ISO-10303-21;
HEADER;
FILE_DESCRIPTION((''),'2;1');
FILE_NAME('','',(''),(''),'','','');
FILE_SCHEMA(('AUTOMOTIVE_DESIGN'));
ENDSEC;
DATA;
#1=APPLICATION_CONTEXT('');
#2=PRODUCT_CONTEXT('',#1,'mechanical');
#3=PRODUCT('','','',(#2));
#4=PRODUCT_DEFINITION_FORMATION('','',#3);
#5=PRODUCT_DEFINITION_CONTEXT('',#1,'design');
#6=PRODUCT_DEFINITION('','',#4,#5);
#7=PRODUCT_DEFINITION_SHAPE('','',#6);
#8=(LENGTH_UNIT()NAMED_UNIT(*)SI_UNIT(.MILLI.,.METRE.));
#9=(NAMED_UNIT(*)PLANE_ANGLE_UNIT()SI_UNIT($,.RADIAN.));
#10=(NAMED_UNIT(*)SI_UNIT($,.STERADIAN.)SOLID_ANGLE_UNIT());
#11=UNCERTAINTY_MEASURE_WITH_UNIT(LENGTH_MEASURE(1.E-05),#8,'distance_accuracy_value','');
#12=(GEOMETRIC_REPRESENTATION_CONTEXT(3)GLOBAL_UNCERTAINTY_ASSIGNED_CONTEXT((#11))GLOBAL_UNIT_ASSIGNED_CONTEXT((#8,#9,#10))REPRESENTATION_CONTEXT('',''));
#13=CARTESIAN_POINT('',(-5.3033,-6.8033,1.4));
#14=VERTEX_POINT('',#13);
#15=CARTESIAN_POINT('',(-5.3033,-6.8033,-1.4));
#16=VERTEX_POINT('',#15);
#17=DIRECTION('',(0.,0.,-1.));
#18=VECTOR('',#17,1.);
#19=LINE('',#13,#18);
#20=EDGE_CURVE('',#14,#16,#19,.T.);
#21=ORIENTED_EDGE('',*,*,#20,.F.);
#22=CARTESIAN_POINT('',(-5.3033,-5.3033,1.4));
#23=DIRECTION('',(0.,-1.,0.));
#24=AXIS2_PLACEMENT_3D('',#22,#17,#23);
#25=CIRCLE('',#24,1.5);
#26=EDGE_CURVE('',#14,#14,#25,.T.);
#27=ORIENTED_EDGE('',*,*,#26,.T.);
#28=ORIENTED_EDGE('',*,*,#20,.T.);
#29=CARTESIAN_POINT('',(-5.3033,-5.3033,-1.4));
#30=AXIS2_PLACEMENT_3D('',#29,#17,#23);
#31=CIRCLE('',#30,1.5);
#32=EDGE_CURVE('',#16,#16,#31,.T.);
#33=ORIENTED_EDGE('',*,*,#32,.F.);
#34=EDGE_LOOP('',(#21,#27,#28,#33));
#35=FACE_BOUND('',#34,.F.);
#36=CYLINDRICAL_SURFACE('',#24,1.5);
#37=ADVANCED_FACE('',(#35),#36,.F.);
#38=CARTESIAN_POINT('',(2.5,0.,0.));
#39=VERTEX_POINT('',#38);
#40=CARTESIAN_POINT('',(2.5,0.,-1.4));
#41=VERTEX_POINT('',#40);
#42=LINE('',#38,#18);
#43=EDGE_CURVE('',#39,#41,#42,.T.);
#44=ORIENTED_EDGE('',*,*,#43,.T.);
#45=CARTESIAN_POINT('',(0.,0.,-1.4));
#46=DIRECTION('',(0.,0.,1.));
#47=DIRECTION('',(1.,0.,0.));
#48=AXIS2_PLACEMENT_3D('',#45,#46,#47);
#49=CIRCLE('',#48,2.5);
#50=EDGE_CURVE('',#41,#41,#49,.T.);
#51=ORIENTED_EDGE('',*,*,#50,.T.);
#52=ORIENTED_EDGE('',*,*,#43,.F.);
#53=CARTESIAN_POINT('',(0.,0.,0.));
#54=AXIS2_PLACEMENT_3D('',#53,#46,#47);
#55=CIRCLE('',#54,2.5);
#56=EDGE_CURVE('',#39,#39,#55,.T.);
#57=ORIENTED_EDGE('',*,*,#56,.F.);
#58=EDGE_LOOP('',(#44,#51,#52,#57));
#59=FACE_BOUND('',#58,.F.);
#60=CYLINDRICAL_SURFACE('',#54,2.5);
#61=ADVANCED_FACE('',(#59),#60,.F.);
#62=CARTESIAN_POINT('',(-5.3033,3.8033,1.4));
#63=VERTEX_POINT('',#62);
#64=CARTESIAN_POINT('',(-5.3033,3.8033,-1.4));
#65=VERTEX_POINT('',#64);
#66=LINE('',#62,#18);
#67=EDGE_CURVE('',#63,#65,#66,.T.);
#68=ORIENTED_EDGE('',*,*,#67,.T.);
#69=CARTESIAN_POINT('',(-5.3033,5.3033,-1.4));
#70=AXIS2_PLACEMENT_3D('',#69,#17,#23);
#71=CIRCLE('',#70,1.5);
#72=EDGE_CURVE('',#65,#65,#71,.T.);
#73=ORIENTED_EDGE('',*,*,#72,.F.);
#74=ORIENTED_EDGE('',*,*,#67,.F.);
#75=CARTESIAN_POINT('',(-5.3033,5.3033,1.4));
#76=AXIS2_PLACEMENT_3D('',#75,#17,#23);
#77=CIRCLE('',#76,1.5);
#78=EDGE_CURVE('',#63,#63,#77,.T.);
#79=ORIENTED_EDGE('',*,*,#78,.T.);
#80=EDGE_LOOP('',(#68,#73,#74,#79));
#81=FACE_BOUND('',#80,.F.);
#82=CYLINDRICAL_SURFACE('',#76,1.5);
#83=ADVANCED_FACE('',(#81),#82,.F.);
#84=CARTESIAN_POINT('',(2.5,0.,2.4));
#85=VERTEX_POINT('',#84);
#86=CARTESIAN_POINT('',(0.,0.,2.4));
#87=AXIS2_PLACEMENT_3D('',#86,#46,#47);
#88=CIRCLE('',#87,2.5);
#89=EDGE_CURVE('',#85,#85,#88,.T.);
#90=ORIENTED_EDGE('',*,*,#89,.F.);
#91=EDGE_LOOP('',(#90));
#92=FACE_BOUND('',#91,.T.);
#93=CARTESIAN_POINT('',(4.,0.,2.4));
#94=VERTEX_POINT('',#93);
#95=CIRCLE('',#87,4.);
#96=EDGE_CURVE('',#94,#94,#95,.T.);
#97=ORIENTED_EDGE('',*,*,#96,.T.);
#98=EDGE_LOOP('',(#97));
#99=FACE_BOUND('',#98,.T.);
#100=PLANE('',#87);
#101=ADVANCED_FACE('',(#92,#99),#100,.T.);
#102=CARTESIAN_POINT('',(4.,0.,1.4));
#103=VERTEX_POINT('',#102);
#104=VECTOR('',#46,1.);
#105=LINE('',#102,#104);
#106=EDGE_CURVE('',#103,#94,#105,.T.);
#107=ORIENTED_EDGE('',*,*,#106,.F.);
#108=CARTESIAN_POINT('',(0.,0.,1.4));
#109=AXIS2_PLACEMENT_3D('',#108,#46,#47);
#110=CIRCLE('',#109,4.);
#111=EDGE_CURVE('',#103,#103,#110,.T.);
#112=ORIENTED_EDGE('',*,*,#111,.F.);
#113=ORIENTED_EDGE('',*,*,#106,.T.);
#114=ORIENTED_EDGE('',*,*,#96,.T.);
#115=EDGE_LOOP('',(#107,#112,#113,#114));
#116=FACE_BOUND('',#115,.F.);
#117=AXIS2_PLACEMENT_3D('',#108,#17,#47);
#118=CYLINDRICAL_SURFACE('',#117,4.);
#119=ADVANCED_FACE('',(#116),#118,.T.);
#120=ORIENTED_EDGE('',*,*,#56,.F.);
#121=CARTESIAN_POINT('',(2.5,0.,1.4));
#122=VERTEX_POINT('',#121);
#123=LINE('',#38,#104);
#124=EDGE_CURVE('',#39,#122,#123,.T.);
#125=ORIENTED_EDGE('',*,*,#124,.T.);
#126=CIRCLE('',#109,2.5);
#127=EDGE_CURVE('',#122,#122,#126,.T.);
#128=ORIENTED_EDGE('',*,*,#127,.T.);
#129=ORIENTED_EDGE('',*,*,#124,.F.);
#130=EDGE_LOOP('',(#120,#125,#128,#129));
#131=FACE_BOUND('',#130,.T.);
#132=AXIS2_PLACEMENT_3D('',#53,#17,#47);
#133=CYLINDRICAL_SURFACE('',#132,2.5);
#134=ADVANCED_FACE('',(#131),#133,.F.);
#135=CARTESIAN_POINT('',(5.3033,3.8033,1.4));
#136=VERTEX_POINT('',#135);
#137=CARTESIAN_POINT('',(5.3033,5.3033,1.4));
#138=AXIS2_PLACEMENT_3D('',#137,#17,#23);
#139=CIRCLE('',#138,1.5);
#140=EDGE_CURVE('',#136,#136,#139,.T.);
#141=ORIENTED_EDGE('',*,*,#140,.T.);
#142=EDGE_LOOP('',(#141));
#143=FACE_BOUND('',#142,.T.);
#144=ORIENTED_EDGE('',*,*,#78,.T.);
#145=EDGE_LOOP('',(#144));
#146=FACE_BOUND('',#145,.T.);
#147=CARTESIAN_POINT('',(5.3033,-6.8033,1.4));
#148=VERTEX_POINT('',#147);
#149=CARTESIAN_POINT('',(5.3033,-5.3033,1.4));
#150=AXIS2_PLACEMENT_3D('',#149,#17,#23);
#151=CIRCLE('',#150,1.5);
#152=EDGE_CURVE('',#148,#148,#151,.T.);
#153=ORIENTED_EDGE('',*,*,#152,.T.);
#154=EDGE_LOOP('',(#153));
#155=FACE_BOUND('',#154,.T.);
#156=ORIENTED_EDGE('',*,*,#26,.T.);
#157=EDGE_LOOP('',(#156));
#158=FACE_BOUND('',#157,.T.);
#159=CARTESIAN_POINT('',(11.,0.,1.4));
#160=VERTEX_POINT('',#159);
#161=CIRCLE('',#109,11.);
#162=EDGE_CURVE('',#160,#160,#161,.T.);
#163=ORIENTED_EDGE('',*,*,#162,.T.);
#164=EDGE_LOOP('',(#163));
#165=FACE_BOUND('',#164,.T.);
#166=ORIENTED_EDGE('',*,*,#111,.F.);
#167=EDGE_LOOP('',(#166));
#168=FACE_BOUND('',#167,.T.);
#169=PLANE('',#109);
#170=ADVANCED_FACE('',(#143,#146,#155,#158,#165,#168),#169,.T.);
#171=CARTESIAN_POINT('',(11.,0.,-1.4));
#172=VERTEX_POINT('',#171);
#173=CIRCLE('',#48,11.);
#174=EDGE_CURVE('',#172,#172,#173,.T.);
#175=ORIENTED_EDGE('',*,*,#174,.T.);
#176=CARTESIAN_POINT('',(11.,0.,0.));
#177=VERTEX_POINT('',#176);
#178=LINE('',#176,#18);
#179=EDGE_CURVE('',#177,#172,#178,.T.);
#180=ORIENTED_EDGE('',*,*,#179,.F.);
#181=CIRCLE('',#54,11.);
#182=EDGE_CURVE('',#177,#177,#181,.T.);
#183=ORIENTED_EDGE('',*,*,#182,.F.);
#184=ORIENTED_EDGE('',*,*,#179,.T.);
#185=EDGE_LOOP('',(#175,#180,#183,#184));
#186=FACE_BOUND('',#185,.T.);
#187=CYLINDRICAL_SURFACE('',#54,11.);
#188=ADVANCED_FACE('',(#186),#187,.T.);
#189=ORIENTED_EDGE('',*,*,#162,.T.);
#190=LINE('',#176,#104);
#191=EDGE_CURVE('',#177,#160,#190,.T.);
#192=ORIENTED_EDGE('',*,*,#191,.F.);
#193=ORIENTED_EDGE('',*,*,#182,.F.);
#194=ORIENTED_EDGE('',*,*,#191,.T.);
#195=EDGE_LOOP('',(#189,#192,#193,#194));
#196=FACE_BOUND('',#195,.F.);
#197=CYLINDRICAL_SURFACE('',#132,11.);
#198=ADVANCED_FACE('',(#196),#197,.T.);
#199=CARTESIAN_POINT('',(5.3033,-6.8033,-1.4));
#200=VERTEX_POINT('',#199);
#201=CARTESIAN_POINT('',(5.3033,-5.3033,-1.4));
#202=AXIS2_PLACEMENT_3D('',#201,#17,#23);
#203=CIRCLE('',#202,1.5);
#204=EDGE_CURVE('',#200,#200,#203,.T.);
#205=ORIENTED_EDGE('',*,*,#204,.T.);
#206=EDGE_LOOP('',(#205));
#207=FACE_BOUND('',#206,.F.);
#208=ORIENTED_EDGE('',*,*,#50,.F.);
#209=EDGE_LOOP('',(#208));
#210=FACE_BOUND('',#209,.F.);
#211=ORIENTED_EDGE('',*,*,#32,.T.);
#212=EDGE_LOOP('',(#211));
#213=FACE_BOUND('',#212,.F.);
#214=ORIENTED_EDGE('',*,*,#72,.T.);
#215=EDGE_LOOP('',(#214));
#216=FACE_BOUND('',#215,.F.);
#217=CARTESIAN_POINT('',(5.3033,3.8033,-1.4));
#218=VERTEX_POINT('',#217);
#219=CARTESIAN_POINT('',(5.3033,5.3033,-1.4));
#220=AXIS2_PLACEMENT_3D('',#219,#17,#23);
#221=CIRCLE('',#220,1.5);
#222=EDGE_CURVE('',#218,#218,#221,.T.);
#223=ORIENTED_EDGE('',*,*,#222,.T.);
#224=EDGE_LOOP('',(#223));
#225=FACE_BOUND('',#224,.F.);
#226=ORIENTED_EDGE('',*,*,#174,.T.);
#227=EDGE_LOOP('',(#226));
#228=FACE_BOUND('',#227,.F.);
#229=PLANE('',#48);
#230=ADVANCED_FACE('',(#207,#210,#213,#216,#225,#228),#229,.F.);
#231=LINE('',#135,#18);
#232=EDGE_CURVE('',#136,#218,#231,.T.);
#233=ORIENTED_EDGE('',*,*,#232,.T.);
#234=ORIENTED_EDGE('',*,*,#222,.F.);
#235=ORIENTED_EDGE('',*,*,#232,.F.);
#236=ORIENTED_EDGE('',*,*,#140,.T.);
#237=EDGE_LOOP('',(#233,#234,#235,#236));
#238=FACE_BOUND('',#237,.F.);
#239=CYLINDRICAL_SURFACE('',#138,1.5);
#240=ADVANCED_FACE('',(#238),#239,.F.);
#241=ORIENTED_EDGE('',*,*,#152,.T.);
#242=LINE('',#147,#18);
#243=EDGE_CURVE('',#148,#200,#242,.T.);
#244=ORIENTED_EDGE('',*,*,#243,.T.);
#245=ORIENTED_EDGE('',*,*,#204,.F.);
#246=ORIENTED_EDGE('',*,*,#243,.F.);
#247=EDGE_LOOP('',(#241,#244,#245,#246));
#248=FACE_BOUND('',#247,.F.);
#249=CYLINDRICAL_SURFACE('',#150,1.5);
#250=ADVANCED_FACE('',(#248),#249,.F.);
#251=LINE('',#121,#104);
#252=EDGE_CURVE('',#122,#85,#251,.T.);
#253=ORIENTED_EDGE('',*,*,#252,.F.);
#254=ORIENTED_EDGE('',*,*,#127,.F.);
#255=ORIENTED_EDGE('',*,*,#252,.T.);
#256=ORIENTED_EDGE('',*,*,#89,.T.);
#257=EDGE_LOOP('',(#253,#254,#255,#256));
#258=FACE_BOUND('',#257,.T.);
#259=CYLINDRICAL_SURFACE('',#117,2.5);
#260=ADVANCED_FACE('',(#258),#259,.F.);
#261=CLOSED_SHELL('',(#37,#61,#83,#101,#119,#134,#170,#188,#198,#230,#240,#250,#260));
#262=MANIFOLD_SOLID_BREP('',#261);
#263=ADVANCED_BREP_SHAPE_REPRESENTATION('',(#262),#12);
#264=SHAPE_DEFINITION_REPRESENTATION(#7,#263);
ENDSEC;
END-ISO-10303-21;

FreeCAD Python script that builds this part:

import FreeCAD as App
import Part
import Sketcher
from FreeCAD import Vector
Q = App.Units.Quantity

doc = App.newDocument("Part")
body = doc.addObject("PartDesign::Body", "Body")

sketch1 = body.newObject("Sketcher::SketchObject", "Sketch")
sketch1.AttachmentSupport = (doc.getObject("XY_Plane"), [""])
sketch1.MapMode = "FlatFace"
sketch1.addGeometry([
    Part.Circle(Vector(0, 0, 0), Vector(0, 0, 1), 11),
    Part.Circle(Vector(0, 0, 0), Vector(0, 0, 1), 2.5),
], False)
sketch1.addConstraint([
    Sketcher.Constraint("Coincident", 0, 3, -1, 1),
    Sketcher.Constraint("Coincident", 1, 3, -1, 1),
    Sketcher.Constraint("Diameter", 0, Q("22 mm")),
    Sketcher.Constraint("Diameter", 1, Q("5 mm")),
])
pad1 = body.newObject("PartDesign::Pad", "Pad")
pad1.Profile = sketch1
pad1.Length = 2.8
pad1.Midplane = True

sketch2 = body.newObject("Sketcher::SketchObject", "Sketch001")
sketch2.AttachmentSupport = (doc.getObject("XY_Plane"), [""])
sketch2.MapMode = "FlatFace"
sketch2.AttachmentOffset = App.Placement(Vector(0, 0, 1.4), App.Rotation())
sketch2.addGeometry([
    Part.Circle(Vector(-5.3033, 5.3033, 0), Vector(0, 0, 1), 1.5),
    Part.Circle(Vector(5.3033, 5.3033, 0), Vector(0, 0, 1), 1.5),
    Part.Circle(Vector(-5.3033, -5.3033, 0), Vector(0, 0, 1), 1.5),
    Part.Circle(Vector(5.3033, -5.3033, 0), Vector(0, 0, 1), 1.5),
], False)
sketch2.addConstraint([
    Sketcher.Constraint("Equal", 0, 1),
    Sketcher.Constraint("Equal", 1, 2),
    Sketcher.Constraint("Equal", 2, 3),
    Sketcher.Constraint("Symmetric", 1, 3, 2, 3, -1, 1),
    Sketcher.Constraint("Symmetric", 0, 3, 3, 3, -1, 1),
    Sketcher.Constraint("Symmetric", 0, 3, 1, 3, -2),
    Sketcher.Constraint("Diameter", 0, Q("3 mm")),
    Sketcher.Constraint("DistanceX", 0, 3, -1, 1, Q("5.3033 mm")),
    Sketcher.Constraint("DistanceY", -1, 1, 0, 3, Q("5.3033 mm")),
])
doc.recompute()
hole = body.newObject("PartDesign::Hole", "Hole")
hole.Profile = sketch2
hole.ThreadType = "None"
hole.Diameter = 3
hole.DepthType = "ThroughAll"

sketch3 = body.newObject("Sketcher::SketchObject", "Sketch002")
sketch3.AttachmentSupport = (doc.getObject("XY_Plane"), [""])
sketch3.MapMode = "FlatFace"
sketch3.AttachmentOffset = App.Placement(Vector(0, 0, 1.4), App.Rotation())
sketch3.addGeometry([
    Part.Circle(Vector(0, 0, 0), Vector(0, 0, 1), 4),
    Part.Circle(Vector(0, 0, 0), Vector(0, 0, 1), 2.5),
], False)
sketch3.addConstraint([
    Sketcher.Constraint("Coincident", 0, 3, -1, 1),
    Sketcher.Constraint("Coincident", 1, 3, -1, 1),
    Sketcher.Constraint("Diameter", 0, Q("8 mm")),
    Sketcher.Constraint("Diameter", 1, Q("5 mm")),
])
pad2 = body.newObject("PartDesign::Pad", "Pad001")
pad2.Profile = sketch3
pad2.Length = 1

doc.recompute()
